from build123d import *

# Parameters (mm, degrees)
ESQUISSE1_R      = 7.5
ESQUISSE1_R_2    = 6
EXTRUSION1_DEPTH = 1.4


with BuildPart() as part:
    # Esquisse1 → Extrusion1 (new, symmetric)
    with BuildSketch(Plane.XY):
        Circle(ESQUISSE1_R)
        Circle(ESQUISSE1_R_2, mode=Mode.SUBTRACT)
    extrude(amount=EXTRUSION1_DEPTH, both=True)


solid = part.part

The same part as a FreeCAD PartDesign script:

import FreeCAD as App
import Part
import Sketcher
from FreeCAD import Vector

doc = App.newDocument("Part")
params = doc.addObject("Spreadsheet::Sheet", "Params")
for row, (alias, value) in enumerate([
    ("sketch1_diameter", "15 mm"),
    ("sketch1_diameter2", "12 mm"),
    ("pad1_length", "2.8 mm"),
], start=1):
    params.set(f"A{row}", alias)
    params.set(f"B{row}", "=" + value)
    params.setAlias(f"B{row}", alias)

body = doc.addObject("PartDesign::Body", "Body")

# Sketch on XY plane
sketch1 = body.newObject("Sketcher::SketchObject", "Sketch")
sketch1.AttachmentSupport = (doc.getObject("XY_Plane"), [""])
sketch1.MapMode = "FlatFace"
sketch1.addGeometry([
    Part.Circle(Vector(0, 0, 0), Vector(0, 0, 1), 8),
    Part.Circle(Vector(0, 0, 0), Vector(0, 0, 1), 6),
], False)
sketch1.addConstraint([
    Sketcher.Constraint("Coincident", 0, 3, -1, 1),
    Sketcher.Constraint("Coincident", 1, 3, -1, 1),
    Sketcher.Constraint("Diameter", 0, 15.0),
    Sketcher.Constraint("Diameter", 1, 12.0),
])
sketch1.setExpression("Constraints[2]", "Params.sketch1_diameter")
sketch1.setExpression("Constraints[3]", "Params.sketch1_diameter2")
pad1 = body.newObject("PartDesign::Pad", "Pad")
pad1.Profile = sketch1
pad1.setExpression("Length", "Params.pad1_length")
pad1.Midplane = True

doc.recompute()
